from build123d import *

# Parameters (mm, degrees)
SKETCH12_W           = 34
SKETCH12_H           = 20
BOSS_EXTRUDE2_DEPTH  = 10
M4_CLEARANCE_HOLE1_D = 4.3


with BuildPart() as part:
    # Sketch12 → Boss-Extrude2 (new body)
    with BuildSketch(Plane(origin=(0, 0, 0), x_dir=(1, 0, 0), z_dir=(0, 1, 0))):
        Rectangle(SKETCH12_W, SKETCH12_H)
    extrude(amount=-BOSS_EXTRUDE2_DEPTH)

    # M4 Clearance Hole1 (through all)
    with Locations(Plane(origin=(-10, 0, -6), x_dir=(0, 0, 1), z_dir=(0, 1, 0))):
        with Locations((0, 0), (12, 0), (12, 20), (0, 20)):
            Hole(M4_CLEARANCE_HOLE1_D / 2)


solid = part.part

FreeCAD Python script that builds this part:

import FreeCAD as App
import Part
import Sketcher

V = App.Vector

doc = App.newDocument("Part")
body = doc.addObject("PartDesign::Body", "Body")

# Sketch on XZ plane
sketch1 = body.newObject("Sketcher::SketchObject", "Sketch")
sketch1.AttachmentSupport = (doc.getObject("XZ_Plane"), [""])
sketch1.MapMode = "FlatFace"
sketch1.addGeometry([
    Part.LineSegment(V(-17, -10, 0), V(-17, 10, 0)),
    Part.LineSegment(V(-17, 10, 0), V(17, 10, 0)),
    Part.LineSegment(V(17, 10, 0), V(17, -10, 0)),
    Part.LineSegment(V(17, -10, 0), V(-17, -10, 0)),
], False)
sketch1.addConstraint([
    Sketcher.Constraint("Coincident", 0, 2, 1, 1),
    Sketcher.Constraint("Coincident", 1, 2, 2, 1),
    Sketcher.Constraint("Coincident", 2, 2, 3, 1),
    Sketcher.Constraint("Coincident", 3, 2, 0, 1),
    Sketcher.Constraint("Vertical", 0),
    Sketcher.Constraint("Horizontal", 1),
    Sketcher.Constraint("Vertical", 2),
    Sketcher.Constraint("Horizontal", 3),
    Sketcher.Constraint("Symmetric", 0, 2, 2, 2, -1, 1),
    Sketcher.Constraint("DistanceX", 1, 1, 1, 2, 34.0),
    Sketcher.Constraint("DistanceY", 0, 1, 0, 2, 20.0),
])
pad1 = body.newObject("PartDesign::Pad", "Pad")
pad1.Profile = sketch1
pad1.Length = 10

# Sketch on XZ plane
sketch2 = body.newObject("Sketcher::SketchObject", "Sketch001")
sketch2.AttachmentSupport = (doc.getObject("XZ_Plane"), [""])
sketch2.MapMode = "FlatFace"
sketch2.addGeometry([
    Part.Circle(V(-10, -6, 0), V(0, 0, 1), 2.1),
    Part.Circle(V(-10, 6, 0), V(0, 0, 1), 2.1),
    Part.Circle(V(10, 6, 0), V(0, 0, 1), 2.1),
    Part.Circle(V(10, -6, 0), V(0, 0, 1), 2.1),
], False)
sketch2.addConstraint([
    Sketcher.Constraint("Equal", 0, 1),
    Sketcher.Constraint("Equal", 1, 2),
    Sketcher.Constraint("Equal", 2, 3),
    Sketcher.Constraint("Symmetric", 0, 3, 2, 3, -1, 1),
    Sketcher.Constraint("Symmetric", 1, 3, 3, 3, -1, 1),
    Sketcher.Constraint("Symmetric", 1, 3, 2, 3, -2),
    Sketcher.Constraint("Diameter", 0, 4.3),
    Sketcher.Constraint("DistanceX", 0, 3, -1, 1, 10.0),
    Sketcher.Constraint("DistanceY", 0, 3, -1, 1, 6.0),
])
doc.recompute()
hole = body.newObject("PartDesign::Hole", "Hole")
hole.Profile = sketch2
hole.ThreadType = "None"
hole.Diameter = 4.3
hole.DepthType = "ThroughAll"
hole.Reversed = True

doc.recompute()
